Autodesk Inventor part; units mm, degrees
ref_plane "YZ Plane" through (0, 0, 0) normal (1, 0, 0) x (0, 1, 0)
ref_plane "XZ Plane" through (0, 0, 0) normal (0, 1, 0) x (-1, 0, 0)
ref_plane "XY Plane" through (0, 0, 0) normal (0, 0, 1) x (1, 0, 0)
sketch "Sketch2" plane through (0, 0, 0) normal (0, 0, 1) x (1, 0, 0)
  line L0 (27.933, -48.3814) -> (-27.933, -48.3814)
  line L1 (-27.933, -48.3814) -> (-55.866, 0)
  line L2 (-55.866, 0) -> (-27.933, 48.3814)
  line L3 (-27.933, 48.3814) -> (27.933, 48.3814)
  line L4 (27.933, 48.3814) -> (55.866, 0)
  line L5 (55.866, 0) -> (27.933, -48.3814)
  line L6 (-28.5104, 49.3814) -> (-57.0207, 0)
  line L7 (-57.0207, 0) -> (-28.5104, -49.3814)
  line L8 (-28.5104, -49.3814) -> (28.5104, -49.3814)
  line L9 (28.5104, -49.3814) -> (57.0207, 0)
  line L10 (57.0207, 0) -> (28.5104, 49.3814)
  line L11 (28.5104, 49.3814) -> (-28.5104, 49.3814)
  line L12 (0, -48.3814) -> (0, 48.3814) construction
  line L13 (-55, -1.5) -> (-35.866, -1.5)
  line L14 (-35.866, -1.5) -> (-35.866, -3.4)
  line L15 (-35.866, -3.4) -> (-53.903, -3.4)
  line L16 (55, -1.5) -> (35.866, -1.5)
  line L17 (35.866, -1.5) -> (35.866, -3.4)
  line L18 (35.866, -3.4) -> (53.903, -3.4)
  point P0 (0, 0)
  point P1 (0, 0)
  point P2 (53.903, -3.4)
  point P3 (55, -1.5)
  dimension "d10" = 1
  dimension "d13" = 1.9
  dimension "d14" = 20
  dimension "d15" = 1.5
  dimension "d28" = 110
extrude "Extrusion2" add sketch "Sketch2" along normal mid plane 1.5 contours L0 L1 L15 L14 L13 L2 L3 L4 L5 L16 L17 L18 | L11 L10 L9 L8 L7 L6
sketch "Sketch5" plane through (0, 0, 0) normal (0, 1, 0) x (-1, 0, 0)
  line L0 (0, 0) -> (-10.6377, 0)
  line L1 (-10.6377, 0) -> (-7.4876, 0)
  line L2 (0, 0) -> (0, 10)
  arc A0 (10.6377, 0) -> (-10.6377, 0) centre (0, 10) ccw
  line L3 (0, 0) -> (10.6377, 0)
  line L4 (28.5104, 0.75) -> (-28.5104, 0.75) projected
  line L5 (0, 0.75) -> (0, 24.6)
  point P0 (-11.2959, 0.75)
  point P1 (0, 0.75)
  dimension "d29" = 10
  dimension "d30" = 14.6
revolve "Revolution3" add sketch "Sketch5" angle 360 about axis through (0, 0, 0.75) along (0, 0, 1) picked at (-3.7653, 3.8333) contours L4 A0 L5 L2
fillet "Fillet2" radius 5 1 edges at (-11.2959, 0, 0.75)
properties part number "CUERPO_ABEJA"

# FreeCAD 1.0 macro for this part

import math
import FreeCAD as App
import Part
import Sketcher
from FreeCAD import Vector
Q = App.Units.Quantity


def edges_at(feature, points):
    """Names of the edges that pass closest to the given points."""
    edges = feature.Shape.Edges
    near = lambda p: min(range(len(edges)), key=lambda i: edges[i].distToShape(Part.Vertex(*p))[0])
    return sorted({f"Edge{near(p) + 1}" for p in points})


def add_polygon(sketch, points):
    """Adds a closed chain of lines whose ends are joined by coincident constraints."""
    first, n = sketch.GeometryCount, len(points)
    for a, b in zip(points, points[1:] + points[:1]):
        sketch.addGeometry(Part.LineSegment(App.Vector(*a, 0), App.Vector(*b, 0)), False)
    for i in range(n):
        sketch.addConstraint(Sketcher.Constraint("Coincident", first + i, 2, first + (i + 1) % n, 1))

doc = App.newDocument("Part")
params = doc.addObject("Spreadsheet::Sheet", "Params")
for row, (alias, value) in enumerate([
    ("sketch1_height", "1.9 mm"),
    ("pad1_length", "1.5 mm"),
    ("sketch2_radius", "14.6 mm"),
    ("sketch2_height", "23.85 mm"),
    ("revolution_angle", "360 deg"),
    ("fillet_radius", "5 mm"),
], start=1):
    params.set(f"A{row}", alias)
    params.set(f"B{row}", "=" + value)
    params.setAlias(f"B{row}", alias)

body = doc.addObject("PartDesign::Body", "Body")

# Sketch on XY plane
sketch1 = body.newObject("Sketcher::SketchObject", "Sketch")
sketch1.AttachmentSupport = (doc.getObject("XY_Plane"), [""])
sketch1.MapMode = "FlatFace"
add_polygon(sketch1, [(28.5, 49.4), (-28.5, 49.4), (-57, 0), (-28.5, -49.4), (28.5, -49.4), (57, 0)])  # lines 0-5
add_polygon(sketch1, [(-35.9, -3.4), (-53.9, -3.4), (-55, -1.5), (-35.9, -1.5)])  # lines 6-9
add_polygon(sketch1, [(35.9, -1.5), (55, -1.5), (53.9, -3.4), (35.9, -3.4)])  # lines 10-13
sketch1.addConstraint([
    Sketcher.Constraint("Horizontal", 0),
    Sketcher.Constraint("Horizontal", 3),
    Sketcher.Constraint("Horizontal", 6),
    Sketcher.Constraint("Horizontal", 8),
    Sketcher.Constraint("Vertical", 9),
    Sketcher.Constraint("Horizontal", 10),
    Sketcher.Constraint("Horizontal", 12),
    Sketcher.Constraint("Vertical", 13),
    Sketcher.Constraint("Symmetric", 0, 2, 3, 2, -1, 1),
    Sketcher.Constraint("Symmetric", 1, 2, 4, 2, -1, 1),
    Sketcher.Constraint("Symmetric", 7, 2, 10, 2, -2),
    Sketcher.Constraint("Symmetric", 6, 2, 11, 2, -2),
    Sketcher.Constraint("PointOnObject", 1, 2, -1),
    Sketcher.Constraint("Parallel", 2, 5),
    Sketcher.Constraint("Parallel", 5, 7),
    Sketcher.Constraint("Parallel", 4, 11),
    Sketcher.Constraint("Equal", 8, 10),
    Sketcher.Constraint("DistanceY", 9, 2, 9, 1, 1.9),
    Sketcher.Constraint("DistanceY", 7, 2, -1, 1, 1.5),
    Sketcher.Constraint("Angle", 1, Q("-120 deg")),
    Sketcher.Constraint("DistanceX", 7, 2, -1, 1, 55.0),
    Sketcher.Constraint("DistanceX", 6, 2, 6, 1, 18.037),
    Sketcher.Constraint("DistanceX", 0, 2, 0, 1, 57.0208),
    Sketcher.Constraint("DistanceX", 1, 2, 3, 2, 85.531),
])
sketch1.setExpression("Constraints[31]", "Params.sketch1_height")
pad1 = body.newObject("PartDesign::Pad", "Pad")
pad1.Profile = sketch1
pad1.setExpression("Length", "Params.pad1_length")
pad1.Midplane = True

# Sketch on XZ plane
sketch2 = body.newObject("Sketcher::SketchObject", "Sketch001")
sketch2.AttachmentSupport = (doc.getObject("XZ_Plane"), [""])
sketch2.MapMode = "FlatFace"
sketch2.addGeometry([
    Part.LineSegment(Vector(11, 1, 0), Vector(0, 1, 0)),
    Part.LineSegment(Vector(0, 1, 0), Vector(0, 25, 0)),
    Part.ArcOfCircle(Part.Circle(Vector(0, 10, 0), Vector(0, 0, 1), 15), math.radians(-39), math.radians(90)),
], False)
sketch2.addConstraint([
    Sketcher.Constraint("Coincident", 0, 2, 1, 1),
    Sketcher.Constraint("Coincident", 1, 2, 2, 2),
    Sketcher.Constraint("Coincident", 2, 1, 0, 1),
    Sketcher.Constraint("Horizontal", 0),
    Sketcher.Constraint("Vertical", 1),
    Sketcher.Constraint("PointOnObject", 2, 3, -2),
    Sketcher.Constraint("PointOnObject", 0, 2, -2),
    Sketcher.Constraint("Radius", 2, 14.6),
    Sketcher.Constraint("DistanceY", -1, 1, 2, 3, 10.0),
    Sketcher.Constraint("DistanceY", 1, 1, 1, 2, 23.85),
])
sketch2.setExpression("Constraints[7]", "Params.sketch2_radius")
sketch2.setExpression("Constraints[9]", "Params.sketch2_height")
revolution = body.newObject("PartDesign::Revolution", "Revolution")
revolution.Profile = sketch2
revolution.ReferenceAxis = (sketch2, ["V_Axis"])
revolution.setExpression("Angle", "Params.revolution_angle")
doc.recompute()

fillet = body.newObject("PartDesign::Fillet", "Fillet")
fillet.Base = (revolution, edges_at(revolution, [(-11.296, 0, 0.75)]))
fillet.setExpression("Radius", "Params.fillet_radius")

doc.recompute()
